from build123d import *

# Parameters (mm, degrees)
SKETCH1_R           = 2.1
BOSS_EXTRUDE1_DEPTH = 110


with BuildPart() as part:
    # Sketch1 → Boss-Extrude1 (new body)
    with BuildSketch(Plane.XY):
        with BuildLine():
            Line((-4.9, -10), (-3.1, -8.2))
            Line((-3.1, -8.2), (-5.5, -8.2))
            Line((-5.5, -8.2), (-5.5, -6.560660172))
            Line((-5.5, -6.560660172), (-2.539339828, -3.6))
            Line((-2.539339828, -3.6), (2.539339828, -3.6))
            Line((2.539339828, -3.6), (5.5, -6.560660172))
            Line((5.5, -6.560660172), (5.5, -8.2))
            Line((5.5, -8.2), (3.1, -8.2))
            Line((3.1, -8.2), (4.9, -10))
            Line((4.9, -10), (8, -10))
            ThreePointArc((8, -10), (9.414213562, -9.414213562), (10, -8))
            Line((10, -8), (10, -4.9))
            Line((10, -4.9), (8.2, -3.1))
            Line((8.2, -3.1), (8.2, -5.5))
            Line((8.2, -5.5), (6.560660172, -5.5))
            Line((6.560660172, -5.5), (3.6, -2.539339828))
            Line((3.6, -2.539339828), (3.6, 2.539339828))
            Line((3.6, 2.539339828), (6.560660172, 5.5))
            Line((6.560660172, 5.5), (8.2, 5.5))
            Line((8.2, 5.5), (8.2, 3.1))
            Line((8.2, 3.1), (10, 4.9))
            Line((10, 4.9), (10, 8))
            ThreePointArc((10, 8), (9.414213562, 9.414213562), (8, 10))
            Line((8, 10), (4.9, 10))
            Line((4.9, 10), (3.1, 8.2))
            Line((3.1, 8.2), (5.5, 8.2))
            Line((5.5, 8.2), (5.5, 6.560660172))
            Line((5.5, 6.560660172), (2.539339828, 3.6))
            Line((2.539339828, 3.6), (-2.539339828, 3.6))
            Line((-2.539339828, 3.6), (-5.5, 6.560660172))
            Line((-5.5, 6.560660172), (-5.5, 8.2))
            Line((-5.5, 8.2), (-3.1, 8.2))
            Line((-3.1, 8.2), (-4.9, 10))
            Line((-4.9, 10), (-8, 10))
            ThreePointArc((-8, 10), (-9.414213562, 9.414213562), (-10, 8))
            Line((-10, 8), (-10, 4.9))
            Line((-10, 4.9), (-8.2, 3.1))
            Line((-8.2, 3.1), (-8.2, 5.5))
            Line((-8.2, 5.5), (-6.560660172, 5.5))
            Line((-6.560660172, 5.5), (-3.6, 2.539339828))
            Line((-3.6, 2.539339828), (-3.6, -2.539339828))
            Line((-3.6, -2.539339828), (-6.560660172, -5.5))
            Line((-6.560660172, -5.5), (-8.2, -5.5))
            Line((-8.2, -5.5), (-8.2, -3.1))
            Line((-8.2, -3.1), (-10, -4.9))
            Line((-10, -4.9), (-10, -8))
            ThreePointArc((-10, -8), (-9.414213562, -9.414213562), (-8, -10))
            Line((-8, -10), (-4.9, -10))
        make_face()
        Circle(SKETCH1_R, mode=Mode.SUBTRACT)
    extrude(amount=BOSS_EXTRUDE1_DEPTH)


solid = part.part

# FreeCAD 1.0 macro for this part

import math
import FreeCAD as App
import Part
import Sketcher

V = App.Vector
Q = App.Units.Quantity

doc = App.newDocument("Part")
params = doc.addObject("Spreadsheet::Sheet", "Params")
for row, (alias, value) in enumerate([
    ("sketch1_radius", "2 mm"),
    ("sketch1_diameter", "4.2 mm"),
    ("sketch1_width", "2.4 mm"),
    ("sketch1_width2", "3.1 mm"),
    ("pad1_length", "110 mm"),
], start=1):
    params.set(f"A{row}", alias)
    params.set(f"B{row}", "=" + value)
    params.setAlias(f"B{row}", alias)

body = doc.addObject("PartDesign::Body", "Body")

sketch1 = body.newObject("Sketcher::SketchObject", "Sketch")
sketch1.AttachmentSupport = (doc.getObject("XY_Plane"), [""])
sketch1.MapMode = "FlatFace"
sketch1.addGeometry(Part.LineSegment(V(-4.9, -10, 0), V(-3.1, -8.2, 0)), False)
sketch1.addGeometry(Part.LineSegment(V(-3.1, -8.2, 0), V(-5.5, -8.2, 0)), False)
sketch1.addGeometry(Part.LineSegment(V(-5.5, -8.2, 0), V(-5.5, -6.6, 0)), False)
sketch1.addGeometry(Part.LineSegment(V(-5.5, -6.6, 0), V(-2.5, -3.6, 0)), False)
sketch1.addGeometry(Part.LineSegment(V(-2.5, -3.6, 0), V(2.5, -3.6, 0)), False)
sketch1.addGeometry(Part.LineSegment(V(2.5, -3.6, 0), V(5.5, -6.6, 0)), False)
sketch1.addGeometry(Part.LineSegment(V(5.5, -6.6, 0), V(5.5, -8.2, 0)), False)
sketch1.addGeometry(Part.LineSegment(V(5.5, -8.2, 0), V(3.1, -8.2, 0)), False)
sketch1.addGeometry(Part.LineSegment(V(3.1, -8.2, 0), V(4.9, -10, 0)), False)
sketch1.addGeometry(Part.LineSegment(V(4.9, -10, 0), V(8, -10, 0)), False)
sketch1.addGeometry(Part.ArcOfCircle(Part.Circle(V(8, -8, 0), V(0, 0, 1), 2), math.radians(-90), math.radians(0)), False)
sketch1.addGeometry(Part.LineSegment(V(10, -8, 0), V(10, -4.9, 0)), False)
sketch1.addGeometry(Part.LineSegment(V(10, -4.9, 0), V(8.2, -3.1, 0)), False)
sketch1.addGeometry(Part.LineSegment(V(8.2, -3.1, 0), V(8.2, -5.5, 0)), False)
sketch1.addGeometry(Part.LineSegment(V(8.2, -5.5, 0), V(6.6, -5.5, 0)), False)
sketch1.addGeometry(Part.LineSegment(V(6.6, -5.5, 0), V(3.6, -2.5, 0)), False)
sketch1.addGeometry(Part.LineSegment(V(3.6, -2.5, 0), V(3.6, 2.5, 0)), False)
sketch1.addGeometry(Part.LineSegment(V(3.6, 2.5, 0), V(6.6, 5.5, 0)), False)
sketch1.addGeometry(Part.LineSegment(V(6.6, 5.5, 0), V(8.2, 5.5, 0)), False)
sketch1.addGeometry(Part.LineSegment(V(8.2, 5.5, 0), V(8.2, 3.1, 0)), False)
sketch1.addGeometry(Part.LineSegment(V(8.2, 3.1, 0), V(10, 4.9, 0)), False)
sketch1.addGeometry(Part.LineSegment(V(10, 4.9, 0), V(10, 8, 0)), False)
sketch1.addGeometry(Part.ArcOfCircle(Part.Circle(V(8, 8, 0), V(0, 0, 1), 2), math.radians(0), math.radians(90)), False)
sketch1.addGeometry(Part.LineSegment(V(8, 10, 0), V(4.9, 10, 0)), False)
sketch1.addGeometry(Part.LineSegment(V(4.9, 10, 0), V(3.1, 8.2, 0)), False)
sketch1.addGeometry(Part.LineSegment(V(3.1, 8.2, 0), V(5.5, 8.2, 0)), False)
sketch1.addGeometry(Part.LineSegment(V(5.5, 8.2, 0), V(5.5, 6.6, 0)), False)
sketch1.addGeometry(Part.LineSegment(V(5.5, 6.6, 0), V(2.5, 3.6, 0)), False)
sketch1.addGeometry(Part.LineSegment(V(2.5, 3.6, 0), V(-2.5, 3.6, 0)), False)
sketch1.addGeometry(Part.LineSegment(V(-2.5, 3.6, 0), V(-5.5, 6.6, 0)), False)
sketch1.addGeometry(Part.LineSegment(V(-5.5, 6.6, 0), V(-5.5, 8.2, 0)), False)
sketch1.addGeometry(Part.LineSegment(V(-5.5, 8.2, 0), V(-3.1, 8.2, 0)), False)
sketch1.addGeometry(Part.LineSegment(V(-3.1, 8.2, 0), V(-4.9, 10, 0)), False)
sketch1.addGeometry(Part.LineSegment(V(-4.9, 10, 0), V(-8, 10, 0)), False)
sketch1.addGeometry(Part.ArcOfCircle(Part.Circle(V(-8, 8, 0), V(0, 0, 1), 2), math.radians(90), math.radians(180)), False)
sketch1.addGeometry(Part.LineSegment(V(-10, 8, 0), V(-10, 4.9, 0)), False)
sketch1.addGeometry(Part.LineSegment(V(-10, 4.9, 0), V(-8.2, 3.1, 0)), False)
sketch1.addGeometry(Part.LineSegment(V(-8.2, 3.1, 0), V(-8.2, 5.5, 0)), False)
sketch1.addGeometry(Part.LineSegment(V(-8.2, 5.5, 0), V(-6.6, 5.5, 0)), False)
sketch1.addGeometry(Part.LineSegment(V(-6.6, 5.5, 0), V(-3.6, 2.5, 0)), False)
sketch1.addGeometry(Part.LineSegment(V(-3.6, 2.5, 0), V(-3.6, -2.5, 0)), False)
sketch1.addGeometry(Part.LineSegment(V(-3.6, -2.5, 0), V(-6.6, -5.5, 0)), False)
sketch1.addGeometry(Part.LineSegment(V(-6.6, -5.5, 0), V(-8.2, -5.5, 0)), False)
sketch1.addGeometry(Part.LineSegment(V(-8.2, -5.5, 0), V(-8.2, -3.1, 0)), False)
sketch1.addGeometry(Part.LineSegment(V(-8.2, -3.1, 0), V(-10, -4.9, 0)), False)
sketch1.addGeometry(Part.LineSegment(V(-10, -4.9, 0), V(-10, -8, 0)), False)
sketch1.addGeometry(Part.ArcOfCircle(Part.Circle(V(-8, -8, 0), V(0, 0, 1), 2), math.radians(-180), math.radians(-90)), False)
sketch1.addGeometry(Part.LineSegment(V(-8, -10, 0), V(-4.9, -10, 0)), False)
sketch1.addGeometry(Part.Circle(V(0, 0, 0), V(0, 0, 1), 2.1), False)
sketch1.addConstraint(Sketcher.Constraint("Coincident", 0, 2, 1, 1))
sketch1.addConstraint(Sketcher.Constraint("Coincident", 1, 2, 2, 1))
sketch1.addConstraint(Sketcher.Constraint("Coincident", 2, 2, 3, 1))
sketch1.addConstraint(Sketcher.Constraint("Coincident", 3, 2, 4, 1))
sketch1.addConstraint(Sketcher.Constraint("Coincident", 4, 2, 5, 1))
sketch1.addConstraint(Sketcher.Constraint("Coincident", 5, 2, 6, 1))
sketch1.addConstraint(Sketcher.Constraint("Coincident", 6, 2, 7, 1))
sketch1.addConstraint(Sketcher.Constraint("Coincident", 7, 2, 8, 1))
sketch1.addConstraint(Sketcher.Constraint("Coincident", 8, 2, 9, 1))
sketch1.addConstraint(Sketcher.Constraint("Tangent", 9, 2, 10, 1))
sketch1.addConstraint(Sketcher.Constraint("Tangent", 10, 2, 11, 1))
sketch1.addConstraint(Sketcher.Constraint("Coincident", 11, 2, 12, 1))
sketch1.addConstraint(Sketcher.Constraint("Coincident", 12, 2, 13, 1))
sketch1.addConstraint(Sketcher.Constraint("Coincident", 13, 2, 14, 1))
sketch1.addConstraint(Sketcher.Constraint("Coincident", 14, 2, 15, 1))
sketch1.addConstraint(Sketcher.Constraint("Coincident", 15, 2, 16, 1))
sketch1.addConstraint(Sketcher.Constraint("Coincident", 16, 2, 17, 1))
sketch1.addConstraint(Sketcher.Constraint("Coincident", 17, 2, 18, 1))
sketch1.addConstraint(Sketcher.Constraint("Coincident", 18, 2, 19, 1))
sketch1.addConstraint(Sketcher.Constraint("Coincident", 19, 2, 20, 1))
sketch1.addConstraint(Sketcher.Constraint("Coincident", 20, 2, 21, 1))
sketch1.addConstraint(Sketcher.Constraint("Tangent", 21, 2, 22, 1))
sketch1.addConstraint(Sketcher.Constraint("Tangent", 22, 2, 23, 1))
sketch1.addConstraint(Sketcher.Constraint("Coincident", 23, 2, 24, 1))
sketch1.addConstraint(Sketcher.Constraint("Coincident", 24, 2, 25, 1))
sketch1.addConstraint(Sketcher.Constraint("Coincident", 25, 2, 26, 1))
sketch1.addConstraint(Sketcher.Constraint("Coincident", 26, 2, 27, 1))
sketch1.addConstraint(Sketcher.Constraint("Coincident", 27, 2, 28, 1))
sketch1.addConstraint(Sketcher.Constraint("Coincident", 28, 2, 29, 1))
sketch1.addConstraint(Sketcher.Constraint("Coincident", 29, 2, 30, 1))
sketch1.addConstraint(Sketcher.Constraint("Coincident", 30, 2, 31, 1))
sketch1.addConstraint(Sketcher.Constraint("Coincident", 31, 2, 32, 1))
sketch1.addConstraint(Sketcher.Constraint("Coincident", 32, 2, 33, 1))
sketch1.addConstraint(Sketcher.Constraint("Tangent", 33, 2, 34, 1))
sketch1.addConstraint(Sketcher.Constraint("Tangent", 34, 2, 35, 1))
sketch1.addConstraint(Sketcher.Constraint("Coincident", 35, 2, 36, 1))
sketch1.addConstraint(Sketcher.Constraint("Coincident", 36, 2, 37, 1))
sketch1.addConstraint(Sketcher.Constraint("Coincident", 37, 2, 38, 1))
sketch1.addConstraint(Sketcher.Constraint("Coincident", 38, 2, 39, 1))
sketch1.addConstraint(Sketcher.Constraint("Coincident", 39, 2, 40, 1))
sketch1.addConstraint(Sketcher.Constraint("Coincident", 40, 2, 41, 1))
sketch1.addConstraint(Sketcher.Constraint("Coincident", 41, 2, 42, 1))
sketch1.addConstraint(Sketcher.Constraint("Coincident", 42, 2, 43, 1))
sketch1.addConstraint(Sketcher.Constraint("Coincident", 43, 2, 44, 1))
sketch1.addConstraint(Sketcher.Constraint("Coincident", 44, 2, 45, 1))
sketch1.addConstraint(Sketcher.Constraint("Tangent", 45, 2, 46, 1))
sketch1.addConstraint(Sketcher.Constraint("Tangent", 46, 2, 47, 1))
sketch1.addConstraint(Sketcher.Constraint("Coincident", 47, 2, 0, 1))
sketch1.addConstraint(Sketcher.Constraint("Horizontal", 1))
sketch1.addConstraint(Sketcher.Constraint("Vertical", 2))
sketch1.addConstraint(Sketcher.Constraint("Horizontal", 4))
sketch1.addConstraint(Sketcher.Constraint("Vertical", 6))
sketch1.addConstraint(Sketcher.Constraint("Horizontal", 7))
sketch1.addConstraint(Sketcher.Constraint("Horizontal", 9))
sketch1.addConstraint(Sketcher.Constraint("Vertical", 11))
sketch1.addConstraint(Sketcher.Constraint("Vertical", 13))
sketch1.addConstraint(Sketcher.Constraint("Horizontal", 14))
sketch1.addConstraint(Sketcher.Constraint("Vertical", 16))
sketch1.addConstraint(Sketcher.Constraint("Horizontal", 18))
sketch1.addConstraint(Sketcher.Constraint("Vertical", 19))
sketch1.addConstraint(Sketcher.Constraint("Vertical", 21))
sketch1.addConstraint(Sketcher.Constraint("Horizontal", 23))
sketch1.addConstraint(Sketcher.Constraint("Horizontal", 25))
sketch1.addConstraint(Sketcher.Constraint("Vertical", 26))
sketch1.addConstraint(Sketcher.Constraint("Horizontal", 28))
sketch1.addConstraint(Sketcher.Constraint("Vertical", 30))
sketch1.addConstraint(Sketcher.Constraint("Horizontal", 31))
sketch1.addConstraint(Sketcher.Constraint("Horizontal", 33))
sketch1.addConstraint(Sketcher.Constraint("Vertical", 35))
sketch1.addConstraint(Sketcher.Constraint("Vertical", 37))
sketch1.addConstraint(Sketcher.Constraint("Horizontal", 38))
sketch1.addConstraint(Sketcher.Constraint("Vertical", 40))
sketch1.addConstraint(Sketcher.Constraint("Horizontal", 42))
sketch1.addConstraint(Sketcher.Constraint("Vertical", 43))
sketch1.addConstraint(Sketcher.Constraint("Vertical", 45))
sketch1.addConstraint(Sketcher.Constraint("Horizontal", 47))
sketch1.addConstraint(Sketcher.Constraint("Coincident", 48, 3, -1, 1))
sketch1.addConstraint(Sketcher.Constraint("Equal", 10, 22))
sketch1.addConstraint(Sketcher.Constraint("Equal", 22, 34))
sketch1.addConstraint(Sketcher.Constraint("Equal", 34, 46))
sketch1.addConstraint(Sketcher.Constraint("Symmetric", 10, 3, 34, 3, -1, 1))
sketch1.addConstraint(Sketcher.Constraint("Symmetric", 22, 3, 46, 3, -1, 1))
sketch1.addConstraint(Sketcher.Constraint("Symmetric", 0, 2, 24, 2, -1, 1))
sketch1.addConstraint(Sketcher.Constraint("Symmetric", 2, 2, 26, 2, -1, 1))
sketch1.addConstraint(Sketcher.Constraint("Symmetric", 3, 2, 27, 2, -1, 1))
sketch1.addConstraint(Sketcher.Constraint("Symmetric", 5, 2, 29, 2, -1, 1))
sketch1.addConstraint(Sketcher.Constraint("Symmetric", 7, 2, 31, 2, -1, 1))
sketch1.addConstraint(Sketcher.Constraint("Symmetric", 12, 2, 36, 2, -1, 1))
sketch1.addConstraint(Sketcher.Constraint("Symmetric", 14, 2, 38, 2, -1, 1))
sketch1.addConstraint(Sketcher.Constraint("Symmetric", 15, 2, 39, 2, -1, 1))
sketch1.addConstraint(Sketcher.Constraint("Symmetric", 17, 2, 41, 2, -1, 1))
sketch1.addConstraint(Sketcher.Constraint("Symmetric", 19, 2, 43, 2, -1, 1))
sketch1.addConstraint(Sketcher.Constraint("Symmetric", 22, 3, 34, 3, -2))
sketch1.addConstraint(Sketcher.Constraint("Symmetric", 2, 2, 5, 2, -2))
sketch1.addConstraint(Sketcher.Constraint("Symmetric", 0, 2, 7, 2, -2))
sketch1.addConstraint(Sketcher.Constraint("Symmetric", 19, 2, 36, 2, -2))
sketch1.addConstraint(Sketcher.Constraint("Symmetric", 17, 2, 38, 2, -2))
sketch1.addConstraint(Sketcher.Constraint("Parallel", 0, 3))
sketch1.addConstraint(Sketcher.Constraint("Perpendicular", 3, 5))
sketch1.addConstraint(Sketcher.Constraint("Parallel", 5, 8))
sketch1.addConstraint(Sketcher.Constraint("Parallel", 8, 12))
sketch1.addConstraint(Sketcher.Constraint("Parallel", 12, 15))
sketch1.addConstraint(Sketcher.Constraint("Perpendicular", 15, 17))
sketch1.addConstraint(Sketcher.Constraint("Parallel", 17, 20))
sketch1.addConstraint(Sketcher.Constraint("Parallel", 20, 24))
sketch1.addConstraint(Sketcher.Constraint("Perpendicular", 27, 29))
sketch1.addConstraint(Sketcher.Constraint("Parallel", 29, 32))
sketch1.addConstraint(Sketcher.Constraint("Parallel", 32, 36))
sketch1.addConstraint(Sketcher.Constraint("Perpendicular", 39, 41))
sketch1.addConstraint(Sketcher.Constraint("Parallel", 41, 44))
sketch1.addConstraint(Sketcher.Constraint("Horizontal", 20, 2, 35, 2))
sketch1.addConstraint(Sketcher.Constraint("Equal", 42, 2))
sketch1.addConstraint(Sketcher.Constraint("Equal", 47, 11))
sketch1.addConstraint(Sketcher.Constraint("Equal", 31, 13))
sketch1.addConstraint(Sketcher.Constraint("Equal", 28, 16))
sketch1.addConstraint(Sketcher.Constraint("Equal", 8, 12))
sketch1.addConstraint(Sketcher.Constraint("Equal", 5, 15))
sketch1.addConstraint(Sketcher.Constraint("Radius", 10, Q("2 mm")))
sketch1.addConstraint(Sketcher.Constraint("Diameter", 48, Q("4.2 mm")))
sketch1.addConstraint(Sketcher.Constraint("DistanceX", 1, 2, 1, 1, Q("2.4 mm")))
sketch1.addConstraint(Sketcher.Constraint("DistanceX", 9, 1, 9, 2, Q("3.1 mm")))
sketch1.addConstraint(Sketcher.Constraint("DistanceX", -1, 1, 10, 3, Q("8 mm")))
sketch1.addConstraint(Sketcher.Constraint("DistanceX", 0, 2, -1, 1, Q("3.1 mm")))
sketch1.addConstraint(Sketcher.Constraint("DistanceY", 3, 2, -1, 1, Q("3.6 mm")))
sketch1.addConstraint(Sketcher.Constraint("DistanceX", 4, 1, 4, 2, Q("5.07868 mm")))
sketch1.setExpression("Constraints[117]", "Params.sketch1_radius")
sketch1.setExpression("Constraints[118]", "Params.sketch1_diameter")
sketch1.setExpression("Constraints[119]", "Params.sketch1_width")
sketch1.setExpression("Constraints[120]", "Params.sketch1_width2")
pad1 = body.newObject("PartDesign::Pad", "Pad")
pad1.Profile = sketch1
pad1.setExpression("Length", "Params.pad1_length")

doc.recompute()
